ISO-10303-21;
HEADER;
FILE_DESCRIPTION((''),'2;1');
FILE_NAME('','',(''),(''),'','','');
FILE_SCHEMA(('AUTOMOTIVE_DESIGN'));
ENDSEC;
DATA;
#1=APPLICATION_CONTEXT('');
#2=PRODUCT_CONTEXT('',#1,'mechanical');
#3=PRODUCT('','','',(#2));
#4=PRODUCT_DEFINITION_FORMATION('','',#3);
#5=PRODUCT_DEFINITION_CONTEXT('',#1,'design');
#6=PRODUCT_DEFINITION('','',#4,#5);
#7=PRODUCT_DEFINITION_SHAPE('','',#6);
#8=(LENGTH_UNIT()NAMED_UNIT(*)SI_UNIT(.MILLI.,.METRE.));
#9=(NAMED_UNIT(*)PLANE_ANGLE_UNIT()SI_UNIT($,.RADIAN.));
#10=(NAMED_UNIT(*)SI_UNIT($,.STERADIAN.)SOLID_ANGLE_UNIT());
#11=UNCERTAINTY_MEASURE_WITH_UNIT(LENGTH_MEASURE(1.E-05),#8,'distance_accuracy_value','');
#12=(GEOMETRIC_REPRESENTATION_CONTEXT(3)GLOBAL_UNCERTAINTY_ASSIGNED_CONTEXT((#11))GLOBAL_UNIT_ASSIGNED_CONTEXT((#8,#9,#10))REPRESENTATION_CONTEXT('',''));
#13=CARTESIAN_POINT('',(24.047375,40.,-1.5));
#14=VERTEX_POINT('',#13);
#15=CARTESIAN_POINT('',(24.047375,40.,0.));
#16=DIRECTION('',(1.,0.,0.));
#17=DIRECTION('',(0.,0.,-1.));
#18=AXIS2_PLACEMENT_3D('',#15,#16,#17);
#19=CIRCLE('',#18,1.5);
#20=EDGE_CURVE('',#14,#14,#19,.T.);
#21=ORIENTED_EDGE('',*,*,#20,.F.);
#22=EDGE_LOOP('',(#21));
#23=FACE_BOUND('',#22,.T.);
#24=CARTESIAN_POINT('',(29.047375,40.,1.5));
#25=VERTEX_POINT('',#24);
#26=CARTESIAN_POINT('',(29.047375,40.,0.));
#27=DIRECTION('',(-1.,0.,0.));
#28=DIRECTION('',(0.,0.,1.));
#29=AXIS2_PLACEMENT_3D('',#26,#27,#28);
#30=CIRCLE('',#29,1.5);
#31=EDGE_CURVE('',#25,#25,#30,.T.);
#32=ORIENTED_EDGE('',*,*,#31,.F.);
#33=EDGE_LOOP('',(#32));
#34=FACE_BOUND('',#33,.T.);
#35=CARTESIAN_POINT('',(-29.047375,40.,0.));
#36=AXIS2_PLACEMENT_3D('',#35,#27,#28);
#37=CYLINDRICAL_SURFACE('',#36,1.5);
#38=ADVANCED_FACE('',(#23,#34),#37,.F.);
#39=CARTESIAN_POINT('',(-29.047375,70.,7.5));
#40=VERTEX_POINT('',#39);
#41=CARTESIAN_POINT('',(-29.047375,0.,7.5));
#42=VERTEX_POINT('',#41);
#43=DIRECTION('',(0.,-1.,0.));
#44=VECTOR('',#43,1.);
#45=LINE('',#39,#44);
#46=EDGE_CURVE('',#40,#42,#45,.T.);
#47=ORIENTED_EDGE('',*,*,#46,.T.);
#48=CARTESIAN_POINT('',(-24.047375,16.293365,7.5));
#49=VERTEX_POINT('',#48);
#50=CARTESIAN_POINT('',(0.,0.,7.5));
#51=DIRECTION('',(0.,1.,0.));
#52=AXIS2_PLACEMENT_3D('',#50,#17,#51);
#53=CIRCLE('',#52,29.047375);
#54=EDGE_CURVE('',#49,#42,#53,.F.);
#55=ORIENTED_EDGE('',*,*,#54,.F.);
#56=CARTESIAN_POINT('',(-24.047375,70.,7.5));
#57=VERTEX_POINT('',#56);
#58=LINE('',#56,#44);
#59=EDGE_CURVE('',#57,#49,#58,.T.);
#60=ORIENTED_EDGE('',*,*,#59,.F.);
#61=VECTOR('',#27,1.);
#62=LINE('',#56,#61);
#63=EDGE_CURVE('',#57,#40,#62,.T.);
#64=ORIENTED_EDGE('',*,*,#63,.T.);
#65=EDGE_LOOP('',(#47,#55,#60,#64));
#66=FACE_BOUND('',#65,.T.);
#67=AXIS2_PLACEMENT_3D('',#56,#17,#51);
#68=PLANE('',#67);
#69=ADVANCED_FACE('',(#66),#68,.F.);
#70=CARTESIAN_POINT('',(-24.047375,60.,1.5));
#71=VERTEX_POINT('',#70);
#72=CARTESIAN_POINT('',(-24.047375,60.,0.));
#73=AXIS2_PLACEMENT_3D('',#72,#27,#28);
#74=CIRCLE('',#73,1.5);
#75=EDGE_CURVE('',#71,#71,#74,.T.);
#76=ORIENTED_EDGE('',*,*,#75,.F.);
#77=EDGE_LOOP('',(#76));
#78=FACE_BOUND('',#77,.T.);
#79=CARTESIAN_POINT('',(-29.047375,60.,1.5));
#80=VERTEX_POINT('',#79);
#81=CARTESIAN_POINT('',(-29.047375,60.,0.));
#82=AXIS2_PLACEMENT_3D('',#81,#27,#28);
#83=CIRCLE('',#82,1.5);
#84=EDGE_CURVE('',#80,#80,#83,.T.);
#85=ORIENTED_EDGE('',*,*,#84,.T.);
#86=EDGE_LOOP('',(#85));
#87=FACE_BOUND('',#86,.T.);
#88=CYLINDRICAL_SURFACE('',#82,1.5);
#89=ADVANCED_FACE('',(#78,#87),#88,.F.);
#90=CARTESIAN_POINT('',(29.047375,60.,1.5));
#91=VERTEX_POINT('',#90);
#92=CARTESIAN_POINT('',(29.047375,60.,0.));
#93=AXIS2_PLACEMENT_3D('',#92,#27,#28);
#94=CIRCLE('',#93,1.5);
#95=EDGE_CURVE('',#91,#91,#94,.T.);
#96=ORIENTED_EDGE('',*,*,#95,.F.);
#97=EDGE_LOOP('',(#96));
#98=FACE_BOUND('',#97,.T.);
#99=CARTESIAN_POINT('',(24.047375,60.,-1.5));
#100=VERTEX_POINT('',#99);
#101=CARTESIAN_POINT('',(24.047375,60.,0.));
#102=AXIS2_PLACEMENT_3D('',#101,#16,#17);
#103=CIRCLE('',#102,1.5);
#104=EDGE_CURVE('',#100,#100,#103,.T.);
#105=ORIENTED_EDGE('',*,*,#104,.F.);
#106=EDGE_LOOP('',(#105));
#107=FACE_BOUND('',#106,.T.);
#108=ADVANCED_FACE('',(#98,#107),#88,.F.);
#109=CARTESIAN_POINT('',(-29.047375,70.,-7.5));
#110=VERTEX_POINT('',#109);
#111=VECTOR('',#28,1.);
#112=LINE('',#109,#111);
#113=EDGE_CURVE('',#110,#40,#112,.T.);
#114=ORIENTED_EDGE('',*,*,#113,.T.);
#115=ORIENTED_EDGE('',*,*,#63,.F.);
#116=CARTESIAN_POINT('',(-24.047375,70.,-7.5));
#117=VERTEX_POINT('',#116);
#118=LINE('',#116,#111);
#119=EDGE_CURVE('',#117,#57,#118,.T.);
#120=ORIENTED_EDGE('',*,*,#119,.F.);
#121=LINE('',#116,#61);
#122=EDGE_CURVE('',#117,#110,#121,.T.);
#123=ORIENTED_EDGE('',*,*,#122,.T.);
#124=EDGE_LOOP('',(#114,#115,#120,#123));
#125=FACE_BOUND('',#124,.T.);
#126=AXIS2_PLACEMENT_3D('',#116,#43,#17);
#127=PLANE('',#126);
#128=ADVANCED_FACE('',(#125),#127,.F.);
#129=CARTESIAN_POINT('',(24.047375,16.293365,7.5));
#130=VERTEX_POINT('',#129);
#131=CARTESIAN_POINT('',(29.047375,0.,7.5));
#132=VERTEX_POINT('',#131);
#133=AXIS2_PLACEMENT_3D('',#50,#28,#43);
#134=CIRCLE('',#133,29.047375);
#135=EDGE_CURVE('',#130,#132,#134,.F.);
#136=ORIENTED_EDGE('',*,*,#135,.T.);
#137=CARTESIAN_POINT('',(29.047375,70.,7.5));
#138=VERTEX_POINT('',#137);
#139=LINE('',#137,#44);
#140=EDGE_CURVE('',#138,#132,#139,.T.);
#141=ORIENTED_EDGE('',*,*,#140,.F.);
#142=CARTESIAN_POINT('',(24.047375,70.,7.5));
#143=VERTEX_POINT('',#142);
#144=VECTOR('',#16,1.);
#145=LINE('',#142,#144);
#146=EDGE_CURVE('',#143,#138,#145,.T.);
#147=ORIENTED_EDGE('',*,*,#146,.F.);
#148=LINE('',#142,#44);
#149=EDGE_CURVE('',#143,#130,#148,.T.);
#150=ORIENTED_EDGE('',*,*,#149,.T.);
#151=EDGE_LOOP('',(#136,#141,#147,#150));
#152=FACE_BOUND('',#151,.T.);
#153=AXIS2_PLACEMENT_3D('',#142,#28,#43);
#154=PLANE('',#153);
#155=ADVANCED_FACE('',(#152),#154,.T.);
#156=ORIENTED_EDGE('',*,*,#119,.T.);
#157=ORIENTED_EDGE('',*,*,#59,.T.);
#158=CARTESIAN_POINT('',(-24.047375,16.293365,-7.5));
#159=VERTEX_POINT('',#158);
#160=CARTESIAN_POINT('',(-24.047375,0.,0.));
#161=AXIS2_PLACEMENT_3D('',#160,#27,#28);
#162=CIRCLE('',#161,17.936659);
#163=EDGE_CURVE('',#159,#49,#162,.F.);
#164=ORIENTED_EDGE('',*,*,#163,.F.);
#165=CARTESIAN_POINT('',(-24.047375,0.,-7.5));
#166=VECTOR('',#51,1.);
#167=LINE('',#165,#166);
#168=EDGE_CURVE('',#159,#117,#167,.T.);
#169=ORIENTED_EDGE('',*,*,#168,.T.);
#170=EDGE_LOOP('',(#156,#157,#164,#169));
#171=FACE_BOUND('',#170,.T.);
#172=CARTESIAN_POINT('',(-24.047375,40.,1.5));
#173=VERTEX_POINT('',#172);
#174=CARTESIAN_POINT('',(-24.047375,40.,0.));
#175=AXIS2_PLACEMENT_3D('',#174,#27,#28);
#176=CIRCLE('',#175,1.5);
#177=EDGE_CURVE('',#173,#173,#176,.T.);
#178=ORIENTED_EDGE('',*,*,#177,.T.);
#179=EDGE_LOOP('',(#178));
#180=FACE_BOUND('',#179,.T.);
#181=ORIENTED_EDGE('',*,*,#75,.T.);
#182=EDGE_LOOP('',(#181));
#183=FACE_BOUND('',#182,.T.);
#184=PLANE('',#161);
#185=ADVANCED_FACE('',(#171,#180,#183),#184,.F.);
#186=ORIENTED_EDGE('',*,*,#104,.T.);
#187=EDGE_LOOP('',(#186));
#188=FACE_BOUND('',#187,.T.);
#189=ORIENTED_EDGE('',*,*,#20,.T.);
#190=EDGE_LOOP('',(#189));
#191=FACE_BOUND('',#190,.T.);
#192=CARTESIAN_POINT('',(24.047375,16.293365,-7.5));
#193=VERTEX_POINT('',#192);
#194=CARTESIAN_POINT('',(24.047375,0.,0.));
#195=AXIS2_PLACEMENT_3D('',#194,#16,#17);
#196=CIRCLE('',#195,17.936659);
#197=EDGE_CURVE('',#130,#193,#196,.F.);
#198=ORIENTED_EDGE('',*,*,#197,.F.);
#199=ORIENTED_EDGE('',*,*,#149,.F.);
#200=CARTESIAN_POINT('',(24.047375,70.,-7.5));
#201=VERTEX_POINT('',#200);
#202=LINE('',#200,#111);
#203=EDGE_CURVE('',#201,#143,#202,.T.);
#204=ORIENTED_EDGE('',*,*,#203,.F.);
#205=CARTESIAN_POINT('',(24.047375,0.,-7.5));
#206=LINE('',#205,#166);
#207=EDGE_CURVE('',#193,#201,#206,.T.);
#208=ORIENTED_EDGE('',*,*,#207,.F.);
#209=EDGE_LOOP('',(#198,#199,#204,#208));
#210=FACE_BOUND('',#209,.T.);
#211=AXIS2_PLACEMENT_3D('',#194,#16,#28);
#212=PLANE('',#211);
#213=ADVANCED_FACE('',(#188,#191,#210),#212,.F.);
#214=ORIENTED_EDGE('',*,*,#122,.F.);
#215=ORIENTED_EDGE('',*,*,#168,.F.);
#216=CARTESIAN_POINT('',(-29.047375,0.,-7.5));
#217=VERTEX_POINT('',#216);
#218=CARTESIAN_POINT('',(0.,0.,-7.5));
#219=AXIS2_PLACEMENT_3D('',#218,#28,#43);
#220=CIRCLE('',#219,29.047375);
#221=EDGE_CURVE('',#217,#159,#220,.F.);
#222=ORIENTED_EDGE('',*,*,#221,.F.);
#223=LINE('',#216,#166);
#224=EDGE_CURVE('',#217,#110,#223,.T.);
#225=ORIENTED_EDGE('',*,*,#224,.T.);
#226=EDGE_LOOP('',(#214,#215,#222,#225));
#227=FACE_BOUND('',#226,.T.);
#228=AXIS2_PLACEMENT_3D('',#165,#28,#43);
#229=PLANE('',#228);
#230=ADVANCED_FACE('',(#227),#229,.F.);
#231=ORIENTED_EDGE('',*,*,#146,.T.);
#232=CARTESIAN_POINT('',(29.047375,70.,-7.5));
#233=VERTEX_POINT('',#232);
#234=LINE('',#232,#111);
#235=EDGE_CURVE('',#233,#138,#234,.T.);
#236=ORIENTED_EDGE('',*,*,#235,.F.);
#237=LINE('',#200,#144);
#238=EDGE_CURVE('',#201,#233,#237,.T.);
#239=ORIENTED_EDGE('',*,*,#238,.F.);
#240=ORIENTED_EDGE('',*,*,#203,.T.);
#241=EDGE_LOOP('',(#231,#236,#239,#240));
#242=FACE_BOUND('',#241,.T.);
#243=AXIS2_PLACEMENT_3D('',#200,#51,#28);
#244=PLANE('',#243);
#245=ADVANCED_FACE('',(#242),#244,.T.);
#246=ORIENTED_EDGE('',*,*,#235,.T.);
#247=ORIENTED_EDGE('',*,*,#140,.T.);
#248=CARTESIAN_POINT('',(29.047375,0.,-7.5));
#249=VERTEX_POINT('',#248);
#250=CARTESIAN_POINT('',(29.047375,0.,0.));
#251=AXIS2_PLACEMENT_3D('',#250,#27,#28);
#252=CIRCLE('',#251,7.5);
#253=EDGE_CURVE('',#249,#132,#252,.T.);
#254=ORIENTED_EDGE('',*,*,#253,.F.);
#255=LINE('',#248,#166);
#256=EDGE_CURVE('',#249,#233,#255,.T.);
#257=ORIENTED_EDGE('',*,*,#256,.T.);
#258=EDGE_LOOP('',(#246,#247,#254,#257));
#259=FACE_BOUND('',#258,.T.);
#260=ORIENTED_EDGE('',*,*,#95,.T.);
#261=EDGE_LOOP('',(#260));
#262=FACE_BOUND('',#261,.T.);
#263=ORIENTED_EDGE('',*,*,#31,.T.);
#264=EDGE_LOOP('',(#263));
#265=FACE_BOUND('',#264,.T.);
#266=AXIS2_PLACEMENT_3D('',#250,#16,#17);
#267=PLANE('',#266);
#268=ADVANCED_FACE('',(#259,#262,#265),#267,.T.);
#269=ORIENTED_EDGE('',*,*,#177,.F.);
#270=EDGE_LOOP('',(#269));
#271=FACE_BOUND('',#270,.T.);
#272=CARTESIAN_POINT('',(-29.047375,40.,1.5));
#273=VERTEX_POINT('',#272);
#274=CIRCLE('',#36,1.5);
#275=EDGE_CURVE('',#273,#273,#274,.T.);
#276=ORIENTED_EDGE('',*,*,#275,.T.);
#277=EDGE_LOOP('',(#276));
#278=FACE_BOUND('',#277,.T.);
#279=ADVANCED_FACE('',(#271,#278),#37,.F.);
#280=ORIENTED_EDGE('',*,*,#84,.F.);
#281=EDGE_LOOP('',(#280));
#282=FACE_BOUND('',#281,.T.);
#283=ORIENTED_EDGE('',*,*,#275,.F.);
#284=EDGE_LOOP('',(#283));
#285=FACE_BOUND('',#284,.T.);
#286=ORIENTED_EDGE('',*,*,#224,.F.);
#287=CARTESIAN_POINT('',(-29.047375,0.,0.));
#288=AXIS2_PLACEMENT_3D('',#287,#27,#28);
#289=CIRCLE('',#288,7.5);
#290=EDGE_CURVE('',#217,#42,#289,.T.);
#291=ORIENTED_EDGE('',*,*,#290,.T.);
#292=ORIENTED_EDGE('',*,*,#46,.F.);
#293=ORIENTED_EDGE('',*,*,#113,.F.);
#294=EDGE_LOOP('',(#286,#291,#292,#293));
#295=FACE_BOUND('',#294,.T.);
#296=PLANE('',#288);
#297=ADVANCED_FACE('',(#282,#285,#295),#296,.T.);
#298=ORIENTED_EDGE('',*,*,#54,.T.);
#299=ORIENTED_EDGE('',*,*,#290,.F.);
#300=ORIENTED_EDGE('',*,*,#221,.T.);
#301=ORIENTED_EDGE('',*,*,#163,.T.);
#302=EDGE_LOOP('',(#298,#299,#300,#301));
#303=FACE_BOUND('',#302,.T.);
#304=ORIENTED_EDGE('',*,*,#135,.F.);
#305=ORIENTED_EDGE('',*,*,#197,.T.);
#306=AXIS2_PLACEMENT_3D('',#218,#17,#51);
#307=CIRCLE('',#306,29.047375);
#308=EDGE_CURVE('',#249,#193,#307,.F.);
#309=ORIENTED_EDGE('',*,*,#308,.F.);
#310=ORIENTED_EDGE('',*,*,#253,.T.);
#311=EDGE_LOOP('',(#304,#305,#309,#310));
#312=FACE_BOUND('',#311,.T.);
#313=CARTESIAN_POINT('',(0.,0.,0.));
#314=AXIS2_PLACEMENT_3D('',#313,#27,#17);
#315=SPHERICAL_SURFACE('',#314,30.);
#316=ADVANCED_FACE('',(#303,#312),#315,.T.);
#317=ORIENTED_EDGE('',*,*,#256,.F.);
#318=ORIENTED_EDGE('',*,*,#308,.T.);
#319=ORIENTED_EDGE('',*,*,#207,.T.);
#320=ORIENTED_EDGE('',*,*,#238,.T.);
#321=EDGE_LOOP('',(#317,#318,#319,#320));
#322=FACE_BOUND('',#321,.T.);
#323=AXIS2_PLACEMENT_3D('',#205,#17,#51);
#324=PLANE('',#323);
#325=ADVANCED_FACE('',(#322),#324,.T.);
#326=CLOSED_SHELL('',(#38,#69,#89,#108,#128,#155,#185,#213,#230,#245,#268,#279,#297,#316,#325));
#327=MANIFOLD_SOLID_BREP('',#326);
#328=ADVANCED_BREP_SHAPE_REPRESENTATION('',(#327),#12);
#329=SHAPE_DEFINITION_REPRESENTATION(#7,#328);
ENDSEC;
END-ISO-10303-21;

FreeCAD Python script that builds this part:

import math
import FreeCAD as App
import Part
import Sketcher
from FreeCAD import Vector

doc = App.newDocument("Part")
body = doc.addObject("PartDesign::Body", "Body")

# Sketch on XZ plane
sketch1 = doc.addObject("Sketcher::SketchObject", "Sketch")
body.addObject(sketch1)
sketch1.AttachmentSupport = (doc.XZ_Plane, [""])
sketch1.MapMode = "FlatFace"
sketch1.addGeometry([
    Part.LineSegment(Vector(29.047375, 0, 0), Vector(29.047375, -7.5, 0)),
    Part.ArcOfCircle(Part.Circle(Vector(0, 0, 0), Vector(0, 0, 1), 30), math.radians(-165.522488), math.radians(-14.477512)),
    Part.LineSegment(Vector(-29.047375, -7.5, 0), Vector(-29.047375, 0, 0)),
    Part.LineSegment(Vector(-29.047375, 0, 0), Vector(29.047375, 0, 0)),
], False)
sketch1.addConstraint([
    Sketcher.Constraint("Coincident", 0, 2, 1, 2),
    Sketcher.Constraint("Coincident", 1, 1, 2, 1),
    Sketcher.Constraint("Coincident", 2, 2, 3, 1),
    Sketcher.Constraint("Coincident", 3, 2, 0, 1),
    Sketcher.Constraint("Vertical", 0),
    Sketcher.Constraint("Vertical", 2),
    Sketcher.Constraint("Horizontal", 3),
    Sketcher.Constraint("Coincident", 1, 3, -1, 1),
    Sketcher.Constraint("Symmetric", 2, 2, 3, 2, -1, 1),
    Sketcher.Constraint("Radius", 1, 30.0),
    Sketcher.Constraint("DistanceY", 0, 2, 0, 1, 7.5),
])
revolution = doc.addObject("PartDesign::Revolution", "Revolution")
body.addObject(revolution)
revolution.Profile = sketch1
revolution.ReferenceAxis = (sketch1, ["H_Axis"])
revolution.Angle = 360

# Sketch on YZ plane
sketch2 = doc.addObject("Sketcher::SketchObject", "Sketch001")
body.addObject(sketch2)
sketch2.AttachmentSupport = (doc.YZ_Plane, [""])
sketch2.MapMode = "FlatFace"
sketch2.AttachmentOffset = App.Placement(Vector(0, 0, -29.047375), App.Rotation())
sketch2.addGeometry([
    Part.LineSegment(Vector(70, -7.5, 0), Vector(0, -7.5, 0)),
    Part.ArcOfCircle(Part.Circle(Vector(0, 0, 0), Vector(0, 0, 1), 7.5), math.radians(90), math.radians(270)),
    Part.LineSegment(Vector(0, 7.5, 0), Vector(70, 7.5, 0)),
    Part.LineSegment(Vector(70, 7.5, 0), Vector(70, -7.5, 0)),
], False)
sketch2.addConstraint([
    Sketcher.Constraint("Tangent", 0, 2, 1, 2),
    Sketcher.Constraint("Tangent", 1, 1, 2, 1),
    Sketcher.Constraint("Coincident", 2, 2, 3, 1),
    Sketcher.Constraint("Coincident", 3, 2, 0, 1),
    Sketcher.Constraint("Horizontal", 0),
    Sketcher.Constraint("Horizontal", 2),
    Sketcher.Constraint("Vertical", 3),
    Sketcher.Constraint("Coincident", 1, 3, -1, 1),
    Sketcher.Constraint("Radius", 1, 7.5),
    Sketcher.Constraint("DistanceX", 0, 2, 0, 1, 70.0),
])
pad1 = doc.addObject("PartDesign::Pad", "Pad")
body.addObject(pad1)
pad1.Profile = sketch2
pad1.Length = 5
doc.recompute()

mirrored = doc.addObject("PartDesign::Mirrored", "Mirrored")
body.addObject(mirrored)
mirrored.Originals = [pad1]
mirrored.MirrorPlane = (doc.YZ_Plane, [""])
body.Tip = mirrored

# Sketch on YZ plane
sketch3 = doc.addObject("Sketcher::SketchObject", "Sketch002")
body.addObject(sketch3)
sketch3.AttachmentSupport = (doc.YZ_Plane, [""])
sketch3.MapMode = "FlatFace"
sketch3.AttachmentOffset = App.Placement(Vector(0, 0, -29.047375), App.Rotation())
sketch3.addGeometry([
    Part.Circle(Vector(60, 0, 0), Vector(0, 0, 1), 1.5),
    Part.Circle(Vector(40, 0, 0), Vector(0, 0, 1), 1.5),
], False)
sketch3.addConstraint([
    Sketcher.Constraint("Equal", 0, 1),
    Sketcher.Constraint("PointOnObject", 0, 3, -1),
    Sketcher.Constraint("PointOnObject", 1, 3, -1),
    Sketcher.Constraint("Diameter", 0, 3.0),
    Sketcher.Constraint("DistanceX", -1, 1, 0, 3, 60.0),
    Sketcher.Constraint("DistanceX", -1, 1, 1, 3, 40.0),
])
doc.recompute()
hole = doc.addObject("PartDesign::Hole", "Hole")
body.addObject(hole)
hole.Profile = sketch3
hole.ThreadType = "None"
hole.Diameter = 3
hole.DepthType = "ThroughAll"
hole.Reversed = True

doc.recompute()
